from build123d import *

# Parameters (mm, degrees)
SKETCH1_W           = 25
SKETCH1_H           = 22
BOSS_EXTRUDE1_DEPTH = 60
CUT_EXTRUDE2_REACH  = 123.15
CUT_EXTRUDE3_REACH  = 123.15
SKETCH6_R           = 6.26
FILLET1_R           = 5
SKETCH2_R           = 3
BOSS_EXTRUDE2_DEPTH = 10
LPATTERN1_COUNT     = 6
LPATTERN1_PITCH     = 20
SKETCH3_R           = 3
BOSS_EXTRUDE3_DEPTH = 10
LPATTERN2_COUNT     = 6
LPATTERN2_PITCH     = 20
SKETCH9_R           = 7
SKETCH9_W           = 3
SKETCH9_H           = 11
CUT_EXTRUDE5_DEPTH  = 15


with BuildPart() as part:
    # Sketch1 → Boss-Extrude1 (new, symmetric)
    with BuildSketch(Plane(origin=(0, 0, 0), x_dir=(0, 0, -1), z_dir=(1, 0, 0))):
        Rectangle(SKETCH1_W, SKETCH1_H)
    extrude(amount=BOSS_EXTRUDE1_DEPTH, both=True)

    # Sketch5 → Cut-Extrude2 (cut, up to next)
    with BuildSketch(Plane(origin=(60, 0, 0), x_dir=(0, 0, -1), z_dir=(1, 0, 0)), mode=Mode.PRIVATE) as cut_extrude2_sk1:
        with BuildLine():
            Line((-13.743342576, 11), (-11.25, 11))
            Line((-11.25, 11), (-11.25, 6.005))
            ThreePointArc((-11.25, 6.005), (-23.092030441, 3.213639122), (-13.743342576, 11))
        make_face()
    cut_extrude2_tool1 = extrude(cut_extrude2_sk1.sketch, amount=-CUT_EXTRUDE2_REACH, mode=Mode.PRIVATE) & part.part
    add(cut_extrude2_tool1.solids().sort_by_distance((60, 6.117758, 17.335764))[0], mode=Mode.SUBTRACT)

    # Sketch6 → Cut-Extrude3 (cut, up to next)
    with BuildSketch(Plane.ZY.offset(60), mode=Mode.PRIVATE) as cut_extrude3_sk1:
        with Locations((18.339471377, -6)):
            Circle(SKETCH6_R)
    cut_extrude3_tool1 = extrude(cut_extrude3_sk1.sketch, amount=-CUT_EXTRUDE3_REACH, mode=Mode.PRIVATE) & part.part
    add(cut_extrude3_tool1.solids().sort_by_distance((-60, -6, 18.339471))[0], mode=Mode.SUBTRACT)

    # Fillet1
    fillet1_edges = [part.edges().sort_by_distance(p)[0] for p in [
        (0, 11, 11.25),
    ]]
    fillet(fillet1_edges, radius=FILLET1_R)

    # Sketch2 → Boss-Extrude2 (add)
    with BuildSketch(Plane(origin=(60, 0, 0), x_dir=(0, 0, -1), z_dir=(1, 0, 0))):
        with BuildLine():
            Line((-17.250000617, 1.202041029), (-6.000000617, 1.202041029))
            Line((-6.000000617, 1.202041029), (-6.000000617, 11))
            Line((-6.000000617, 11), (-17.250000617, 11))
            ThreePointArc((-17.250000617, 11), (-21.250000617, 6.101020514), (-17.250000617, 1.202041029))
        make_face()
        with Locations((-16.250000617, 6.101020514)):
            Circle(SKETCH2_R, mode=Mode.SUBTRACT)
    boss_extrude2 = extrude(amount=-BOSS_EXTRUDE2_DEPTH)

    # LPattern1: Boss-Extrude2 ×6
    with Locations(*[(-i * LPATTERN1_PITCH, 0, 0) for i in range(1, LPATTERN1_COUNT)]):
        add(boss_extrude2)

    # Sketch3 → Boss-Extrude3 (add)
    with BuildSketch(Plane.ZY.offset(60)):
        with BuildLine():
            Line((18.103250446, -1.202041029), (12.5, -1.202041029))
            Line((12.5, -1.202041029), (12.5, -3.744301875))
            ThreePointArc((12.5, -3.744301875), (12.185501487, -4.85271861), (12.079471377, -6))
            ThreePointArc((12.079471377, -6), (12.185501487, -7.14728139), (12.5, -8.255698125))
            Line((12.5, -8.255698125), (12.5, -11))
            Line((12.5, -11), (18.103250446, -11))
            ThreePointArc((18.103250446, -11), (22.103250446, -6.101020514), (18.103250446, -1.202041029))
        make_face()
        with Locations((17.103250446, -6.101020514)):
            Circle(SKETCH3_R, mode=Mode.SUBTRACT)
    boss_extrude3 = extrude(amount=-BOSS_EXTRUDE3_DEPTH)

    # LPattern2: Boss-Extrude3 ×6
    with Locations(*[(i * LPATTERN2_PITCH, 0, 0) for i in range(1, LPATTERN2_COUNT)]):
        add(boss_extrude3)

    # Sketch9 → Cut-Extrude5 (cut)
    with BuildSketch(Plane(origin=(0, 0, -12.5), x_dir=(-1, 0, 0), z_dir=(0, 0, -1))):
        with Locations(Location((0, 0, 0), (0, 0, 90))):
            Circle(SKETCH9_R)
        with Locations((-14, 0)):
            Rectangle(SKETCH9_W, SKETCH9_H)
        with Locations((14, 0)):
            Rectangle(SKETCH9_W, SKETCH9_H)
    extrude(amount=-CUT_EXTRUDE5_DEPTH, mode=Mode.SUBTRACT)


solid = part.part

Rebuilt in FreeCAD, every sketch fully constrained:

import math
import FreeCAD as App
import Part
import Sketcher

V = App.Vector


def edges_at(feature, points):
    """Names of the edges that pass closest to the given points."""
    edges = feature.Shape.Edges
    near = lambda p: min(range(len(edges)), key=lambda i: edges[i].distToShape(Part.Vertex(*p))[0])
    return sorted({f"Edge{near(p) + 1}" for p in points})


def add_polygon(sketch, points):
    """Adds a closed chain of lines whose ends are joined by coincident constraints."""
    first, n = sketch.GeometryCount, len(points)
    for a, b in zip(points, points[1:] + points[:1]):
        sketch.addGeometry(Part.LineSegment(App.Vector(*a, 0), App.Vector(*b, 0)), False)
    for i in range(n):
        sketch.addConstraint(Sketcher.Constraint("Coincident", first + i, 2, first + (i + 1) % n, 1))

doc = App.newDocument("Part")
body = doc.addObject("PartDesign::Body", "Body")

sketch1 = body.newObject("Sketcher::SketchObject", "Sketch")
sketch1.AttachmentSupport = (doc.getObject("YZ_Plane"), [""])
sketch1.MapMode = "FlatFace"
add_polygon(sketch1, [(11, 12), (-11, 12), (-11, -12), (11, -12)])
sketch1.addConstraint([
    Sketcher.Constraint("Horizontal", 0),
    Sketcher.Constraint("Vertical", 1),
    Sketcher.Constraint("Horizontal", 2),
    Sketcher.Constraint("Vertical", 3),
    Sketcher.Constraint("Symmetric", 0, 2, 2, 2, -1, 1),
    Sketcher.Constraint("DistanceX", 0, 2, 0, 1, 22.0),
    Sketcher.Constraint("DistanceY", 1, 2, 1, 1, 25.0),
])
pad1 = body.newObject("PartDesign::Pad", "Pad")
pad1.Profile = sketch1
pad1.Length = 120
pad1.Midplane = True

sketch2 = body.newObject("Sketcher::SketchObject", "Sketch001")
sketch2.AttachmentSupport = (doc.getObject("YZ_Plane"), [""])
sketch2.MapMode = "FlatFace"
sketch2.AttachmentOffset = App.Placement(V(0, 0, 60), App.Rotation())
sketch2.addGeometry([
    Part.LineSegment(V(11, 11.2, 0), V(11, 13.7, 0)),
    Part.ArcOfCircle(Part.Circle(V(6, 17.5, 0), V(0, 0, 1), 6.2), math.radians(-37), math.radians(270)),
    Part.LineSegment(V(6, 11.2, 0), V(11, 11.2, 0)),
], False)
sketch2.addConstraint([
    Sketcher.Constraint("Coincident", 0, 2, 1, 1),
    Sketcher.Constraint("Tangent", 1, 2, 2, 1),
    Sketcher.Constraint("Coincident", 2, 2, 0, 1),
    Sketcher.Constraint("Vertical", 0),
    Sketcher.Constraint("Horizontal", 2),
    Sketcher.Constraint("Radius", 1, 6.25),
    Sketcher.Constraint("DistanceX", -1, 1, 0, 2, 11.0),
    Sketcher.Constraint("DistanceY", -1, 1, 1, 3, 17.5),
    Sketcher.Constraint("DistanceX", 2, 1, 2, 2, 4.995),
])
pocket1 = body.newObject("PartDesign::Pocket", "Pocket")
pocket1.Profile = sketch2
pocket1.Length = 120

sketch3 = body.newObject("Sketcher::SketchObject", "Sketch002")
sketch3.AttachmentSupport = (doc.getObject("YZ_Plane"), [""])
sketch3.MapMode = "FlatFace"
sketch3.AttachmentOffset = App.Placement(V(0, 0, -60), App.Rotation())
sketch3.addGeometry(Part.Circle(V(-6, 18, 0), V(0, 0, 1), 6), False)
sketch3.addConstraint([
    Sketcher.Constraint("Diameter", 0, 12.52),
    Sketcher.Constraint("DistanceX", 0, 3, -1, 1, 6.0),
    Sketcher.Constraint("DistanceY", -1, 1, 0, 3, 18.339471),
])
pocket2 = body.newObject("PartDesign::Pocket", "Pocket001")
pocket2.Profile = sketch3
pocket2.Length = 120
pocket2.Reversed = True
doc.recompute()

fillet = body.newObject("PartDesign::Fillet", "Fillet")
fillet.Base = (pocket2, edges_at(pocket2, [(0, 11, 11.25)]))
fillet.Radius = 5

sketch4 = body.newObject("Sketcher::SketchObject", "Sketch003")
sketch4.AttachmentSupport = (doc.getObject("YZ_Plane"), [""])
sketch4.MapMode = "FlatFace"
sketch4.AttachmentOffset = App.Placement(V(0, 0, 60), App.Rotation())
sketch4.addGeometry([
    Part.LineSegment(V(1.2, 17.3, 0), V(1.2, 6, 0)),
    Part.LineSegment(V(1.2, 6, 0), V(11, 6, 0)),
    Part.LineSegment(V(11, 6, 0), V(11, 17.3, 0)),
    Part.ArcOfCircle(Part.Circle(V(6.1, 16.3, 0), V(0, 0, 1), 5), math.radians(12), math.radians(168)),
    Part.Circle(V(6.1, 16.3, 0), V(0, 0, 1), 3),
], False)
sketch4.addConstraint([
    Sketcher.Constraint("Coincident", 0, 2, 1, 1),
    Sketcher.Constraint("Coincident", 1, 2, 2, 1),
    Sketcher.Constraint("Coincident", 2, 2, 3, 1),
    Sketcher.Constraint("Coincident", 3, 2, 0, 1),
    Sketcher.Constraint("Vertical", 0),
    Sketcher.Constraint("Horizontal", 1),
    Sketcher.Constraint("Vertical", 2),
    Sketcher.Constraint("Coincident", 4, 3, 3, 3),
    Sketcher.Constraint("Horizontal", 2, 2, 3, 2),
    Sketcher.Constraint("Diameter", 4, 6.0),
    Sketcher.Constraint("Radius", 3, 5.0),
    Sketcher.Constraint("DistanceY", -1, 1, 0, 2, 6.000001),
    Sketcher.Constraint("DistanceX", -1, 1, 1, 2, 11.0),
    Sketcher.Constraint("DistanceY", 3, 3, 2, 2, 1.0),
    Sketcher.Constraint("DistanceY", 0, 2, 0, 1, 11.25),
])
pad2 = body.newObject("PartDesign::Pad", "Pad001")
pad2.Profile = sketch4
pad2.Length = 10
pad2.Reversed = True
doc.recompute()

linearpattern = body.newObject("PartDesign::LinearPattern", "LinearPattern")
linearpattern.Originals = [pad2]
linearpattern.Direction = (doc.getObject("X_Axis"), [""])
linearpattern.Mode = "offset"
linearpattern.Offset = 20
linearpattern.Occurrences = 6
linearpattern.Reversed = True
body.Tip = linearpattern

sketch5 = body.newObject("Sketcher::SketchObject", "Sketch004")
sketch5.AttachmentSupport = (doc.getObject("YZ_Plane"), [""])
sketch5.MapMode = "FlatFace"
sketch5.AttachmentOffset = App.Placement(V(0, 0, -60), App.Rotation())
sketch5.addGeometry([
    Part.LineSegment(V(-1.2, 18.1, 0), V(-1.2, 12.5, 0)),
    Part.LineSegment(V(-1.2, 12.5, 0), V(-3.7, 12.5, 0)),
    Part.ArcOfCircle(Part.Circle(V(-6, 18.3, 0), V(0, 0, 1), 6.3), math.radians(-90), math.radians(-69)),
    Part.ArcOfCircle(Part.Circle(V(-6, 18.3, 0), V(0, 0, 1), 6.3), math.radians(-111), math.radians(-90)),
    Part.LineSegment(V(-8.3, 12.5, 0), V(-11, 12.5, 0)),
    Part.LineSegment(V(-11, 12.5, 0), V(-11, 18.1, 0)),
    Part.ArcOfCircle(Part.Circle(V(-6.1, 17.1, 0), V(0, 0, 1), 5), math.radians(12), math.radians(168)),
    Part.Circle(V(-6.1, 17.1, 0), V(0, 0, 1), 3),
], False)
sketch5.addConstraint([
    Sketcher.Constraint("Coincident", 0, 2, 1, 1),
    Sketcher.Constraint("Coincident", 1, 2, 2, 2),
    Sketcher.Constraint("Tangent", 2, 1, 3, 2),
    Sketcher.Constraint("Coincident", 3, 1, 4, 1),
    Sketcher.Constraint("Coincident", 4, 2, 5, 1),
    Sketcher.Constraint("Coincident", 5, 2, 6, 2),
    Sketcher.Constraint("Coincident", 6, 1, 0, 1),
    Sketcher.Constraint("Vertical", 0),
    Sketcher.Constraint("Horizontal", 1),
    Sketcher.Constraint("Horizontal", 4),
    Sketcher.Constraint("Vertical", 5),
    Sketcher.Constraint("Coincident", 7, 3, 6, 3),
    Sketcher.Constraint("Equal", 2, 3),
    Sketcher.Constraint("Horizontal", 1, 2, 3, 1),
    Sketcher.Constraint("Horizontal", 5, 2, 6, 1),
    Sketcher.Constraint("Vertical", 3, 3, 2, 1),
    Sketcher.Constraint("Diameter", 7, 6.0),
    Sketcher.Constraint("Radius", 6, 5.0),
    Sketcher.Constraint("Radius", 2, 6.26),
    Sketcher.Constraint("DistanceX", 2, 3, -1, 1, 6.0),
    Sketcher.Constraint("DistanceX", 4, 2, -1, 1, 11.0),
    Sketcher.Constraint("DistanceY", 6, 3, 5, 2, 1.0),
    Sketcher.Constraint("DistanceY", -1, 1, 0, 2, 12.5),
    Sketcher.Constraint("DistanceX", 4, 2, 4, 1, 2.744302),
    Sketcher.Constraint("DistanceY", 0, 2, 0, 1, 5.60325),
])
pad3 = body.newObject("PartDesign::Pad", "Pad002")
pad3.Profile = sketch5
pad3.Length = 10
doc.recompute()

linearpattern2 = body.newObject("PartDesign::LinearPattern", "LinearPattern001")
linearpattern2.Originals = [pad3]
linearpattern2.Direction = (doc.getObject("X_Axis"), [""])
linearpattern2.Mode = "offset"
linearpattern2.Offset = 20
linearpattern2.Occurrences = 6
body.Tip = linearpattern2

sketch6 = body.newObject("Sketcher::SketchObject", "Sketch005")
sketch6.AttachmentSupport = (doc.getObject("XY_Plane"), [""])
sketch6.MapMode = "FlatFace"
sketch6.AttachmentOffset = App.Placement(V(0, 0, -12.5), App.Rotation())
sketch6.addGeometry(Part.Circle(V(0, 0, 0), V(0, 0, 1), 7), False)
add_polygon(sketch6, [(15.5, 5.5), (15.5, -5.5), (12.5, -5.5), (12.5, 5.5)])
add_polygon(sketch6, [(-12.5, 5.5), (-12.5, -5.5), (-15.5, -5.5), (-15.5, 5.5)])
sketch6.addConstraint([
    Sketcher.Constraint("Vertical", 1),
    Sketcher.Constraint("Horizontal", 2),
    Sketcher.Constraint("Vertical", 3),
    Sketcher.Constraint("Horizontal", 4),
    Sketcher.Constraint("Vertical", 5),
    Sketcher.Constraint("Horizontal", 6),
    Sketcher.Constraint("Vertical", 7),
    Sketcher.Constraint("Horizontal", 8),
    Sketcher.Constraint("Coincident", 0, 3, -1, 1),
    Sketcher.Constraint("Symmetric", 3, 2, 5, 2, -1, 1),
    Sketcher.Constraint("Symmetric", 1, 2, 7, 2, -1, 1),
    Sketcher.Constraint("Horizontal", 2, 2, 5, 2),
    Sketcher.Constraint("Diameter", 0, 14.0),
    Sketcher.Constraint("DistanceX", 2, 2, 2, 1, 3.0),
    Sketcher.Constraint("DistanceY", 1, 2, 1, 1, 11.0),
    Sketcher.Constraint("DistanceX", 5, 2, 2, 2, 25.0),
])
pocket3 = body.newObject("PartDesign::Pocket", "Pocket002")
pocket3.Profile = sketch6
pocket3.Length = 15
pocket3.Reversed = True

doc.recompute()
